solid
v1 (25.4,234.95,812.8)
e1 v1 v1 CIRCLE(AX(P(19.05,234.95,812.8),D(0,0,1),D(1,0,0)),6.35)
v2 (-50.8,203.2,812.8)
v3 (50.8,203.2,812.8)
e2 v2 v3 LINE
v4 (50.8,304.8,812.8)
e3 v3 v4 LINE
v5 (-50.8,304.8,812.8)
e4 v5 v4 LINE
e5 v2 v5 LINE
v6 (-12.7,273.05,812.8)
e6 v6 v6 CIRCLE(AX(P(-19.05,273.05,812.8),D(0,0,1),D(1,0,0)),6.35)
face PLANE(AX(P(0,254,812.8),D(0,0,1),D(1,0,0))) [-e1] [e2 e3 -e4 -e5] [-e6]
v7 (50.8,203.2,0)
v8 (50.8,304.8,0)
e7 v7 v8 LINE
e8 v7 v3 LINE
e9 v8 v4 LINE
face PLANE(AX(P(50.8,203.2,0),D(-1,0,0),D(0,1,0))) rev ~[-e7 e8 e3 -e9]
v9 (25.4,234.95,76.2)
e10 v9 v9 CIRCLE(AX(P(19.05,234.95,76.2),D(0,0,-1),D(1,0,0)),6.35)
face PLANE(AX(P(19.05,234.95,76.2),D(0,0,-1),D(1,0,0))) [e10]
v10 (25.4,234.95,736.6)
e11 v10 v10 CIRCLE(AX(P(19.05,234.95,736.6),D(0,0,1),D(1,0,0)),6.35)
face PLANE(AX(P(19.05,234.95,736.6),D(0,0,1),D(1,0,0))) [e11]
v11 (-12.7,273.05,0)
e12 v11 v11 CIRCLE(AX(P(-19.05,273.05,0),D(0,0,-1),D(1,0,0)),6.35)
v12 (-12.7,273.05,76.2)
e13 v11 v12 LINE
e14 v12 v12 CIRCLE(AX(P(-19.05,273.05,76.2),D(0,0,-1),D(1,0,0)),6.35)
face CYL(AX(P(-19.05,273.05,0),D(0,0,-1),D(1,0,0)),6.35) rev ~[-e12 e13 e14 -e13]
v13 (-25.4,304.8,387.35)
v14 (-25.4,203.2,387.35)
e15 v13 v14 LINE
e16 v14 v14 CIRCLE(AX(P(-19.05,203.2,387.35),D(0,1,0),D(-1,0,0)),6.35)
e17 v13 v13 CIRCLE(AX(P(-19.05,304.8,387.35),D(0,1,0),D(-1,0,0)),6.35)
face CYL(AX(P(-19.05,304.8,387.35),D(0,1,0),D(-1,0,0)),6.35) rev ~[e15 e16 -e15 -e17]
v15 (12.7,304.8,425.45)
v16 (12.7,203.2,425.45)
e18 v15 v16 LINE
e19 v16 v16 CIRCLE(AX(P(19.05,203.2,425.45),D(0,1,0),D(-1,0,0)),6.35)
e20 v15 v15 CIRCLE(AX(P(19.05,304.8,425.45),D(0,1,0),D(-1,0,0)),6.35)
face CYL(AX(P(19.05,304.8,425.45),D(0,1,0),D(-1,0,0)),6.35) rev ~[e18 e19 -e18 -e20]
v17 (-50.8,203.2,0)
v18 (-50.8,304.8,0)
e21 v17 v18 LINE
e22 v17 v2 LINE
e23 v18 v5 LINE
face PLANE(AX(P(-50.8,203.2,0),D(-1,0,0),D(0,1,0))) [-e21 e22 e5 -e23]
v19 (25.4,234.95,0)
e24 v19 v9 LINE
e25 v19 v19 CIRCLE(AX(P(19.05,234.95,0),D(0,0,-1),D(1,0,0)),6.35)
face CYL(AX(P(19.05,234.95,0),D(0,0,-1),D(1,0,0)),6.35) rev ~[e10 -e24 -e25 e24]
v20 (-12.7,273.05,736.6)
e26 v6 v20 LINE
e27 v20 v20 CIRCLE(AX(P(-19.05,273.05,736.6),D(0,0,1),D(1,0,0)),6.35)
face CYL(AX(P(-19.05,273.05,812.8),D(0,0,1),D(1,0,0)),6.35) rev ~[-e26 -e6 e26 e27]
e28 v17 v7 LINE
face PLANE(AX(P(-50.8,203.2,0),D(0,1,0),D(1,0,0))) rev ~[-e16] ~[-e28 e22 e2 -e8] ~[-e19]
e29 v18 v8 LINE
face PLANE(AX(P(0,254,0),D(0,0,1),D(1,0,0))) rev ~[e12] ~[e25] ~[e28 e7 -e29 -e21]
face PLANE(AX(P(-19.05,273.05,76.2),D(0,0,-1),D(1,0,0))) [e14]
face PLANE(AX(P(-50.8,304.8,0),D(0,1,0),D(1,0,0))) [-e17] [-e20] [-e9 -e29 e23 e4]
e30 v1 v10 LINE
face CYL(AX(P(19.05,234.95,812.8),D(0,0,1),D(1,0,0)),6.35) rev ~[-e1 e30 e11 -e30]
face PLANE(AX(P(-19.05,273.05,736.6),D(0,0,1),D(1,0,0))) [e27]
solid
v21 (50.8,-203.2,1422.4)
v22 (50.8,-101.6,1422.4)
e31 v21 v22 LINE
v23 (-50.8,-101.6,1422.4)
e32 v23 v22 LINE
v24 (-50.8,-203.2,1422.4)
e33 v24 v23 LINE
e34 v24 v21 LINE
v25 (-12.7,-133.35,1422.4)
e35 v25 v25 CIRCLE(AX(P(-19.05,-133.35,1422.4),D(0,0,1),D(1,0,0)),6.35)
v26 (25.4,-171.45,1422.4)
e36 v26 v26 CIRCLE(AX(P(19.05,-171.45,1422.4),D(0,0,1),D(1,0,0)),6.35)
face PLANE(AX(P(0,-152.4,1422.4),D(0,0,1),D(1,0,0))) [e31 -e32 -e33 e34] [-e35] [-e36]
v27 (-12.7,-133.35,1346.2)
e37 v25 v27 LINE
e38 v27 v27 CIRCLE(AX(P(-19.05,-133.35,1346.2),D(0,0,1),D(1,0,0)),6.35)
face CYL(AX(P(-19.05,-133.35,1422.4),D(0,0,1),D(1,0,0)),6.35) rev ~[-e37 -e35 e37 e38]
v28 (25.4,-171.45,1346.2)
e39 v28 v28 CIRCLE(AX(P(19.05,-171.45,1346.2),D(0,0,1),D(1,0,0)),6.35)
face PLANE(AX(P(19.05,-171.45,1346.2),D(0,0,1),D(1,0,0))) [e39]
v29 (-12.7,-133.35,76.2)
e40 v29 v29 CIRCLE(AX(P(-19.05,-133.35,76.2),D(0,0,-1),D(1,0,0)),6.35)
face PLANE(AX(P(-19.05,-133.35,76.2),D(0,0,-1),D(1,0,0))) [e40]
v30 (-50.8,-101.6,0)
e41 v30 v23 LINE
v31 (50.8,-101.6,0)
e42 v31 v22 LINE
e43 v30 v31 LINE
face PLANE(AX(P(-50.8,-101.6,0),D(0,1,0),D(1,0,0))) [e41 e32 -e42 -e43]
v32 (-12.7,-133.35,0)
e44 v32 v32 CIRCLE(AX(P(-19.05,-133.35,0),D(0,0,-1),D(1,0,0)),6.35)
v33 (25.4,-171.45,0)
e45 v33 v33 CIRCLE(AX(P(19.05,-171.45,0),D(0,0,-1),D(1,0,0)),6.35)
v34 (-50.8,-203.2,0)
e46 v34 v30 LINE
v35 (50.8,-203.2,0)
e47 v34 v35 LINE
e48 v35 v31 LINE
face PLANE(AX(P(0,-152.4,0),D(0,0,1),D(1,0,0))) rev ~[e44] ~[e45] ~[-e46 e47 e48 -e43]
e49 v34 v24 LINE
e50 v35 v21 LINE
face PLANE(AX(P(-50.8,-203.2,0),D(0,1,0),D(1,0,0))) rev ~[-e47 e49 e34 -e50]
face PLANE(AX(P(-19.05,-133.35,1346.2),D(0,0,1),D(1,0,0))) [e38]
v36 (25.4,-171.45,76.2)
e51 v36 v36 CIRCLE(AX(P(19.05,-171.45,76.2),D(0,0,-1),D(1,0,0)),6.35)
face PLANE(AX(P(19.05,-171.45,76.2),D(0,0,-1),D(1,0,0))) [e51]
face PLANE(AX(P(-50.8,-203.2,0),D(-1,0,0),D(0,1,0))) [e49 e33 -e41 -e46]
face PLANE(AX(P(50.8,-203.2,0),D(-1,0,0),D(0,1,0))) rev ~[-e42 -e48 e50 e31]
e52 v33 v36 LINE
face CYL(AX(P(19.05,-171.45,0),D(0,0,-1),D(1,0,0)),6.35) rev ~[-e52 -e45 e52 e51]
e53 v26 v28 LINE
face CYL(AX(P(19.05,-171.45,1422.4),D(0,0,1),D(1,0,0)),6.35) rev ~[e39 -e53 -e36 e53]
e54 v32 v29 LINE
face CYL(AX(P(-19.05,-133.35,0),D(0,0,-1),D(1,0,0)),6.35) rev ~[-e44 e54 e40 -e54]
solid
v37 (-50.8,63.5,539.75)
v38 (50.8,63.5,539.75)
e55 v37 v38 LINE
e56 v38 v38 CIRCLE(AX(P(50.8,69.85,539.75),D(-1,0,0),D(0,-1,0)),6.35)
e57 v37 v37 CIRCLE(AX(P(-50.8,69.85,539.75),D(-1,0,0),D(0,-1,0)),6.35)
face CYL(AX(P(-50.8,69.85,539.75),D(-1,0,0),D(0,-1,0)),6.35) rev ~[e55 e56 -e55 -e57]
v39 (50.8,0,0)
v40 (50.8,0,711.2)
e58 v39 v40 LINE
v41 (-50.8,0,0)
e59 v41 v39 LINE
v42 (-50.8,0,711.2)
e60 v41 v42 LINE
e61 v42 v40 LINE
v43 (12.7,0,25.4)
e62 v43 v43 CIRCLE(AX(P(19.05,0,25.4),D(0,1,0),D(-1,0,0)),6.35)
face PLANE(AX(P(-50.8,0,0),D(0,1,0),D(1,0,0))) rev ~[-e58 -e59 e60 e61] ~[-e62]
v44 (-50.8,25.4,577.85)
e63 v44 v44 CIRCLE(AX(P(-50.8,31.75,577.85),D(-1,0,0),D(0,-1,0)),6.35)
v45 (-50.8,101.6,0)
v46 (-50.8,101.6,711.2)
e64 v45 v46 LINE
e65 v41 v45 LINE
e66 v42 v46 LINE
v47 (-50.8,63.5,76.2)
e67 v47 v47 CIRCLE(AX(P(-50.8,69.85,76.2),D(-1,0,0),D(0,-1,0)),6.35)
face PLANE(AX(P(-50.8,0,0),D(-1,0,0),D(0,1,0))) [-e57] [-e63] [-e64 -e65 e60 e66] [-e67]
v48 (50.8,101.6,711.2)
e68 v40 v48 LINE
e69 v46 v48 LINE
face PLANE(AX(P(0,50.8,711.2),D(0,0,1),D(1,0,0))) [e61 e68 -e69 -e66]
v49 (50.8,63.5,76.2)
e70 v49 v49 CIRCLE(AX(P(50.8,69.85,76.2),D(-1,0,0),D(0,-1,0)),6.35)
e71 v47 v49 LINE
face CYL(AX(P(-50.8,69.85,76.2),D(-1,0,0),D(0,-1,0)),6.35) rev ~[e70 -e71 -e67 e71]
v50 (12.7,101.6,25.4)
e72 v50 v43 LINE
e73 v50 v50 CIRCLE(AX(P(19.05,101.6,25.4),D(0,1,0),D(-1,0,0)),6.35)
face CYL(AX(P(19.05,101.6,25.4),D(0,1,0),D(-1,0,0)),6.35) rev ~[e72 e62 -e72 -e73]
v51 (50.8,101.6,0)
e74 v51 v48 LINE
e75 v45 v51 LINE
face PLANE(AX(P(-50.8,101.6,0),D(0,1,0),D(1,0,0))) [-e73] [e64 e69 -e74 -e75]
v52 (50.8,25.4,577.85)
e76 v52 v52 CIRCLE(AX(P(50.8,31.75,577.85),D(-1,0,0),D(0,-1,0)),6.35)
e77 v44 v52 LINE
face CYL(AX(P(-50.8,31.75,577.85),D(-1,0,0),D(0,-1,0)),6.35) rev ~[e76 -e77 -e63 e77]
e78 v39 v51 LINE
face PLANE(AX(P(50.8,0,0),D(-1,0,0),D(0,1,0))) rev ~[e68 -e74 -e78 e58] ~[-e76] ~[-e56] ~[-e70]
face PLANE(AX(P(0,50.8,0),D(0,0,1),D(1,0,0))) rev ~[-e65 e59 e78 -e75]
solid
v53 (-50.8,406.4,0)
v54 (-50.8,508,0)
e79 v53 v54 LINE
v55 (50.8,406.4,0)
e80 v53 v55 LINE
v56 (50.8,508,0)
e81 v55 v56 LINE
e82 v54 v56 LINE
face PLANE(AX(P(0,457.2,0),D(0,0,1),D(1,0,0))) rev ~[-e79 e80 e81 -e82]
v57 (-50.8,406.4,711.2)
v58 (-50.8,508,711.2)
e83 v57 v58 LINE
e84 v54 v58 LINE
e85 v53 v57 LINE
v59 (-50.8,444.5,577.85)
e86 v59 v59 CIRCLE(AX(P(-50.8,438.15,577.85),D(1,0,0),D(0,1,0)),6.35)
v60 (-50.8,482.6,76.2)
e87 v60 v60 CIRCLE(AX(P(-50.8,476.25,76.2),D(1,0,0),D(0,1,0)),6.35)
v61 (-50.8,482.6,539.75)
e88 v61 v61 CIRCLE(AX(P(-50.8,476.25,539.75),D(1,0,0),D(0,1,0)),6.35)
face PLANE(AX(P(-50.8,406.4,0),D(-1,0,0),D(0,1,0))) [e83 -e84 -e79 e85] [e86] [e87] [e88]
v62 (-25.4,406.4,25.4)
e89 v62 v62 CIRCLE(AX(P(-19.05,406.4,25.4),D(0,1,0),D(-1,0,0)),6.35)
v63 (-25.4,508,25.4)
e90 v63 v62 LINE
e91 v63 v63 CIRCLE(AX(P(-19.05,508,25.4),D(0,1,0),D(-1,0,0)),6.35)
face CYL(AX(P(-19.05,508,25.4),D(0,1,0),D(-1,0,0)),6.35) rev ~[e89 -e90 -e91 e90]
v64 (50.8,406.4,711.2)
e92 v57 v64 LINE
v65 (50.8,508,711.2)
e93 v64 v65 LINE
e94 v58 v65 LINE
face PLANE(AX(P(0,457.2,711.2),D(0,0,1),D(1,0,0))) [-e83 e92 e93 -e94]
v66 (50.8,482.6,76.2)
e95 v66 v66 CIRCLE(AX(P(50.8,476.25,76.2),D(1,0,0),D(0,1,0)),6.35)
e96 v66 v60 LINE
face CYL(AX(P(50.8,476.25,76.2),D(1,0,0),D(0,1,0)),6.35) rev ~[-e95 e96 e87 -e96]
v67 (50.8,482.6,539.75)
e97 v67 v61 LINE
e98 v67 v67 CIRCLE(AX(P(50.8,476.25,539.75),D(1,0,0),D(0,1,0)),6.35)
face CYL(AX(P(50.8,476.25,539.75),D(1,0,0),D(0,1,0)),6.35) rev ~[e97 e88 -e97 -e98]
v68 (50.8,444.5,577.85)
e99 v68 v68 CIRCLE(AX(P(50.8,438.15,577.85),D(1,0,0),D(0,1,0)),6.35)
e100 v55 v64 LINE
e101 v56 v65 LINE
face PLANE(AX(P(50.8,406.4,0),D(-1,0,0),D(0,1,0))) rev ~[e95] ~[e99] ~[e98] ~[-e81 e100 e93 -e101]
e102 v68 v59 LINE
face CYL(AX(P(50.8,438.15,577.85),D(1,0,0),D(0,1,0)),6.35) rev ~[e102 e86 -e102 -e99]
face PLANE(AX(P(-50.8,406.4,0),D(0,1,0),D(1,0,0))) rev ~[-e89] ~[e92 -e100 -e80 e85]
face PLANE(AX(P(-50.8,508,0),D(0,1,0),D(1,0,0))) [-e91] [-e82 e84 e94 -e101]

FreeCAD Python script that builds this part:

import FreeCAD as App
import Part
import Sketcher

V = App.Vector
Q = App.Units.Quantity


def add_polygon(sketch, points):
    """Adds a closed chain of lines whose ends are joined by coincident constraints."""
    first, n = sketch.GeometryCount, len(points)
    for a, b in zip(points, points[1:] + points[:1]):
        sketch.addGeometry(Part.LineSegment(App.Vector(*a, 0), App.Vector(*b, 0)), False)
    for i in range(n):
        sketch.addConstraint(Sketcher.Constraint("Coincident", first + i, 2, first + (i + 1) % n, 1))

doc = App.newDocument("Part")
body = doc.addObject("PartDesign::Body", "Body")

sketch1 = doc.addObject("Sketcher::SketchObject", "Sketch")
body.addObject(sketch1)
sketch1.AttachmentSupport = (doc.XY_Plane, [""])
sketch1.MapMode = "FlatFace"
add_polygon(sketch1, [(-51, 102), (-51, 0), (51, 0), (51, 102)])
sketch1.addConstraint(Sketcher.Constraint("Vertical", 0))
sketch1.addConstraint(Sketcher.Constraint("Horizontal", 1))
sketch1.addConstraint(Sketcher.Constraint("Vertical", 2))
sketch1.addConstraint(Sketcher.Constraint("Horizontal", 3))
sketch1.addConstraint(Sketcher.Constraint("Symmetric", 0, 2, 1, 2, -1, 1))
sketch1.addConstraint(Sketcher.Constraint("Equal", 3, 0))
sketch1.addConstraint(Sketcher.Constraint("DistanceX", 1, 1, 1, 2, Q("4 in")))
pad1 = doc.addObject("PartDesign::Pad", "Pad")
body.addObject(pad1)
pad1.Profile = sketch1
pad1.Length = Q("28 in")

sketch2 = doc.addObject("Sketcher::SketchObject", "Sketch001")
body.addObject(sketch2)
sketch2.AttachmentSupport = (doc.XZ_Plane, [""])
sketch2.MapMode = "FlatFace"
sketch2.AttachmentOffset = App.Placement(V(0, 0, -4 * 25.4), App.Rotation())
sketch2.addGeometry(Part.Circle(V(19, 25, 0), V(0, 0, 1), 6), False)
sketch2.addConstraint(Sketcher.Constraint("Diameter", 0, Q("0.5 in")))
sketch2.addConstraint(Sketcher.Constraint("DistanceY", -1, 1, 0, 3, Q("1 in")))
sketch2.addConstraint(Sketcher.Constraint("DistanceX", -1, 1, 0, 3, Q("0.75 in")))
pocket1 = doc.addObject("PartDesign::Pocket", "Pocket")
body.addObject(pocket1)
pocket1.Profile = sketch2
pocket1.Type = "ThroughAll"
pocket1.Reversed = True

sketch3 = doc.addObject("Sketcher::SketchObject", "Sketch002")
body.addObject(sketch3)
sketch3.AttachmentSupport = (doc.YZ_Plane, [""])
sketch3.MapMode = "FlatFace"
sketch3.AttachmentOffset = App.Placement(V(0, 0, -2 * 25.4), App.Rotation())
sketch3.addGeometry(Part.Circle(V(70, 76, 0), V(0, 0, 1), 6), False)
sketch3.addConstraint(Sketcher.Constraint("Diameter", 0, Q("0.5 in")))
sketch3.addConstraint(Sketcher.Constraint("DistanceY", -1, 1, 0, 3, Q("3 in")))
sketch3.addConstraint(Sketcher.Constraint("DistanceX", -1, 1, 0, 3, Q("2.75 in")))
pocket2 = doc.addObject("PartDesign::Pocket", "Pocket001")
body.addObject(pocket2)
pocket2.Profile = sketch3
pocket2.Type = "ThroughAll"
pocket2.Reversed = True

sketch4 = doc.addObject("Sketcher::SketchObject", "Sketch003")
body.addObject(sketch4)
sketch4.AttachmentSupport = (doc.YZ_Plane, [""])
sketch4.MapMode = "FlatFace"
sketch4.AttachmentOffset = App.Placement(V(0, 0, -2 * 25.4), App.Rotation())
sketch4.addGeometry(Part.Circle(V(32, 578, 0), V(0, 0, 1), 6), False)
sketch4.addGeometry(Part.Circle(V(70, 540, 0), V(0, 0, 1), 6), False)
sketch4.addConstraint(Sketcher.Constraint("Equal", 0, 1))
sketch4.addConstraint(Sketcher.Constraint("Diameter", 0, Q("0.5 in")))
sketch4.addConstraint(Sketcher.Constraint("DistanceX", 0, 3, 1, 3, Q("1.5 in")))
sketch4.addConstraint(Sketcher.Constraint("DistanceY", 1, 3, 0, 3, Q("1.5 in")))
sketch4.addConstraint(Sketcher.Constraint("DistanceX", -1, 1, 0, 3, Q("1.25 in")))
sketch4.addConstraint(Sketcher.Constraint("DistanceY", -1, 1, 0, 3, Q("22.75 in")))
pocket3 = doc.addObject("PartDesign::Pocket", "Pocket002")
body.addObject(pocket3)
pocket3.Profile = sketch4
pocket3.Type = "ThroughAll"
pocket3.Reversed = True
body2 = doc.addObject("PartDesign::Body", "Body001")

sketch5 = doc.addObject("Sketcher::SketchObject", "Sketch004")
body2.addObject(sketch5)
sketch5.AttachmentSupport = (doc.getObject("XY_Plane001"), [""])
sketch5.MapMode = "FlatFace"
add_polygon(sketch5, [(-51, -102), (-51, -203), (51, -203), (51, -102)])
sketch5.addConstraint(Sketcher.Constraint("Vertical", 0))
sketch5.addConstraint(Sketcher.Constraint("Horizontal", 1))
sketch5.addConstraint(Sketcher.Constraint("Vertical", 2))
sketch5.addConstraint(Sketcher.Constraint("Horizontal", 3))
sketch5.addConstraint(Sketcher.Constraint("Equal", 3, 0))
sketch5.addConstraint(Sketcher.Constraint("DistanceX", 1, 1, 1, 2, Q("4 in")))
sketch5.addConstraint(Sketcher.Constraint("DistanceX", 0, 2, -1, 1, Q("2 in")))
sketch5.addConstraint(Sketcher.Constraint("DistanceY", 0, 2, -1, 1, Q("8 in")))
pad2 = doc.addObject("PartDesign::Pad", "Pad001")
body2.addObject(pad2)
pad2.Profile = sketch5
pad2.Length = Q("56 in")

sketch6 = doc.addObject("Sketcher::SketchObject", "Sketch005")
body2.addObject(sketch6)
sketch6.AttachmentSupport = (doc.getObject("XY_Plane001"), [""])
sketch6.MapMode = "FlatFace"
sketch6.addGeometry(Part.Circle(V(19, -171, 0), V(0, 0, 1), 6), False)
sketch6.addGeometry(Part.Circle(V(-19, -133, 0), V(0, 0, 1), 6), False)
sketch6.addConstraint(Sketcher.Constraint("Equal", 0, 1))
sketch6.addConstraint(Sketcher.Constraint("Diameter", 0, Q("0.5 in")))
sketch6.addConstraint(Sketcher.Constraint("DistanceX", 1, 3, 0, 3, Q("1.5 in")))
sketch6.addConstraint(Sketcher.Constraint("DistanceY", 0, 3, 1, 3, Q("1.5 in")))
sketch6.addConstraint(Sketcher.Constraint("DistanceX", -1, 1, 0, 3, Q("0.75 in")))
sketch6.addConstraint(Sketcher.Constraint("DistanceY", 0, 3, -1, 1, Q("6.75 in")))
pocket4 = doc.addObject("PartDesign::Pocket", "Pocket003")
body2.addObject(pocket4)
pocket4.Profile = sketch6
pocket4.Length = Q("3 in")
pocket4.Reversed = True

sketch7 = doc.addObject("Sketcher::SketchObject", "Sketch006")
body2.addObject(sketch7)
sketch7.AttachmentSupport = (doc.getObject("XY_Plane001"), [""])
sketch7.MapMode = "FlatFace"
sketch7.AttachmentOffset = App.Placement(V(0, 0, 56 * 25.4), App.Rotation())
sketch7.addGeometry(Part.Circle(V(-19, -133, 0), V(0, 0, 1), 6), False)
sketch7.addGeometry(Part.Circle(V(19, -171, 0), V(0, 0, 1), 6), False)
sketch7.addConstraint(Sketcher.Constraint("Equal", 0, 1))
sketch7.addConstraint(Sketcher.Constraint("Diameter", 0, Q("0.5 in")))
sketch7.addConstraint(Sketcher.Constraint("DistanceX", 0, 3, 1, 3, Q("1.5 in")))
sketch7.addConstraint(Sketcher.Constraint("DistanceY", 1, 3, 0, 3, Q("1.5 in")))
sketch7.addConstraint(Sketcher.Constraint("DistanceX", 0, 3, -1, 1, Q("0.75 in")))
sketch7.addConstraint(Sketcher.Constraint("DistanceY", 0, 3, -1, 1, Q("5.25 in")))
pocket5 = doc.addObject("PartDesign::Pocket", "Pocket004")
body2.addObject(pocket5)
pocket5.Profile = sketch7
pocket5.Length = Q("3 in")
body3 = doc.addObject("PartDesign::Body", "Body002")

sketch8 = doc.addObject("Sketcher::SketchObject", "Sketch007")
body3.addObject(sketch8)
sketch8.AttachmentSupport = (doc.getObject("XY_Plane002"), [""])
sketch8.MapMode = "FlatFace"
add_polygon(sketch8, [(-51, 305), (-51, 203), (51, 203), (51, 305)])
sketch8.addConstraint(Sketcher.Constraint("Vertical", 0))
sketch8.addConstraint(Sketcher.Constraint("Horizontal", 1))
sketch8.addConstraint(Sketcher.Constraint("Vertical", 2))
sketch8.addConstraint(Sketcher.Constraint("Horizontal", 3))
sketch8.addConstraint(Sketcher.Constraint("Equal", 3, 0))
sketch8.addConstraint(Sketcher.Constraint("DistanceX", 1, 1, 1, 2, Q("4 in")))
sketch8.addConstraint(Sketcher.Constraint("DistanceX", 0, 2, -1, 1, Q("2 in")))
sketch8.addConstraint(Sketcher.Constraint("DistanceY", -1, 1, 0, 2, Q("8 in")))
pad3 = doc.addObject("PartDesign::Pad", "Pad002")
body3.addObject(pad3)
pad3.Profile = sketch8
pad3.Length = Q("32 in")

sketch9 = doc.addObject("Sketcher::SketchObject", "Sketch008")
body3.addObject(sketch9)
sketch9.AttachmentSupport = (doc.getObject("XZ_Plane002"), [""])
sketch9.MapMode = "FlatFace"
sketch9.AttachmentOffset = App.Placement(V(0, 0, -12 * 25.4), App.Rotation())
sketch9.addGeometry(Part.Circle(V(-19, 387, 0), V(0, 0, 1), 6), False)
sketch9.addGeometry(Part.Circle(V(19, 425, 0), V(0, 0, 1), 6), False)
sketch9.addConstraint(Sketcher.Constraint("Equal", 0, 1))
sketch9.addConstraint(Sketcher.Constraint("Diameter", 0, Q("0.5 in")))
sketch9.addConstraint(Sketcher.Constraint("DistanceX", 0, 3, 1, 3, Q("1.5 in")))
sketch9.addConstraint(Sketcher.Constraint("DistanceY", 0, 3, 1, 3, Q("1.5 in")))
sketch9.addConstraint(Sketcher.Constraint("DistanceX", 0, 3, -1, 1, Q("0.75 in")))
sketch9.addConstraint(Sketcher.Constraint("DistanceY", -1, 1, 0, 3, Q("15.25 in")))
pocket6 = doc.addObject("PartDesign::Pocket", "Pocket005")
body3.addObject(pocket6)
pocket6.Profile = sketch9
pocket6.Type = "ThroughAll"
pocket6.Reversed = True

sketch10 = doc.addObject("Sketcher::SketchObject", "Sketch009")
body3.addObject(sketch10)
sketch10.AttachmentSupport = (doc.getObject("XY_Plane002"), [""])
sketch10.MapMode = "FlatFace"
sketch10.AttachmentOffset = App.Placement(V(0, 0, 32 * 25.4), App.Rotation())
sketch10.addGeometry(Part.Circle(V(-19, 273, 0), V(0, 0, 1), 6), False)
sketch10.addGeometry(Part.Circle(V(19, 235, 0), V(0, 0, 1), 6), False)
sketch10.addConstraint(Sketcher.Constraint("Equal", 0, 1))
sketch10.addConstraint(Sketcher.Constraint("Diameter", 0, Q("0.5 in")))
sketch10.addConstraint(Sketcher.Constraint("DistanceX", 0, 3, 1, 3, Q("1.5 in")))
sketch10.addConstraint(Sketcher.Constraint("DistanceY", 1, 3, 0, 3, Q("1.5 in")))
sketch10.addConstraint(Sketcher.Constraint("DistanceX", 0, 3, -1, 1, Q("0.75 in")))
sketch10.addConstraint(Sketcher.Constraint("DistanceY", -1, 1, 0, 3, Q("10.75 in")))
pocket7 = doc.addObject("PartDesign::Pocket", "Pocket006")
body3.addObject(pocket7)
pocket7.Profile = sketch10
pocket7.Length = Q("3 in")

sketch11 = doc.addObject("Sketcher::SketchObject", "Sketch010")
body3.addObject(sketch11)
sketch11.AttachmentSupport = (doc.getObject("XY_Plane002"), [""])
sketch11.MapMode = "FlatFace"
sketch11.addGeometry(Part.Circle(V(19, 235, 0), V(0, 0, 1), 6), False)
sketch11.addGeometry(Part.Circle(V(-19, 273, 0), V(0, 0, 1), 6), False)
sketch11.addConstraint(Sketcher.Constraint("Equal", 0, 1))
sketch11.addConstraint(Sketcher.Constraint("Diameter", 0, Q("0.5 in")))
sketch11.addConstraint(Sketcher.Constraint("DistanceX", 1, 3, 0, 3, Q("1.5 in")))
sketch11.addConstraint(Sketcher.Constraint("DistanceY", 0, 3, 1, 3, Q("1.5 in")))
sketch11.addConstraint(Sketcher.Constraint("DistanceX", -1, 1, 0, 3, Q("0.75 in")))
sketch11.addConstraint(Sketcher.Constraint("DistanceY", -1, 1, 0, 3, Q("9.25 in")))
pocket8 = doc.addObject("PartDesign::Pocket", "Pocket007")
body3.addObject(pocket8)
pocket8.Profile = sketch11
pocket8.Length = Q("3 in")
pocket8.Reversed = True
body4 = doc.addObject("PartDesign::Body", "Body003")

sketch12 = doc.addObject("Sketcher::SketchObject", "Sketch011")
body4.addObject(sketch12)
sketch12.AttachmentSupport = (doc.getObject("XY_Plane003"), [""])
sketch12.MapMode = "FlatFace"
add_polygon(sketch12, [(-51, 508), (-51, 406), (51, 406), (51, 508)])
sketch12.addConstraint(Sketcher.Constraint("Vertical", 0))
sketch12.addConstraint(Sketcher.Constraint("Horizontal", 1))
sketch12.addConstraint(Sketcher.Constraint("Vertical", 2))
sketch12.addConstraint(Sketcher.Constraint("Horizontal", 3))
sketch12.addConstraint(Sketcher.Constraint("Equal", 3, 0))
sketch12.addConstraint(Sketcher.Constraint("DistanceX", 1, 1, 1, 2, Q("4 in")))
sketch12.addConstraint(Sketcher.Constraint("DistanceX", 0, 2, -1, 1, Q("2 in")))
sketch12.addConstraint(Sketcher.Constraint("DistanceY", -1, 1, 0, 2, Q("16 in")))
pad4 = doc.addObject("PartDesign::Pad", "Pad003")
body4.addObject(pad4)
pad4.Profile = sketch12
pad4.Length = Q("28 in")

sketch13 = doc.addObject("Sketcher::SketchObject", "Sketch012")
body4.addObject(sketch13)
sketch13.AttachmentSupport = (doc.getObject("YZ_Plane003"), [""])
sketch13.MapMode = "FlatFace"
sketch13.AttachmentOffset = App.Placement(V(0, 0, 2 * 25.4), App.Rotation())
sketch13.addGeometry(Part.Circle(V(476, 540, 0), V(0, 0, 1), 6), False)
sketch13.addGeometry(Part.Circle(V(438, 578, 0), V(0, 0, 1), 6), False)
sketch13.addConstraint(Sketcher.Constraint("Equal", 0, 1))
sketch13.addConstraint(Sketcher.Constraint("Diameter", 0, Q("0.5 in")))
sketch13.addConstraint(Sketcher.Constraint("DistanceX", 1, 3, 0, 3, Q("1.5 in")))
sketch13.addConstraint(Sketcher.Constraint("DistanceY", 0, 3, 1, 3, Q("1.5 in")))
sketch13.addConstraint(Sketcher.Constraint("DistanceX", -1, 1, 0, 3, Q("18.75 in")))
sketch13.addConstraint(Sketcher.Constraint("DistanceY", -1, 1, 0, 3, Q("21.25 in")))
pocket9 = doc.addObject("PartDesign::Pocket", "Pocket008")
body4.addObject(pocket9)
pocket9.Profile = sketch13
pocket9.Type = "ThroughAll"

sketch14 = doc.addObject("Sketcher::SketchObject", "Sketch013")
body4.addObject(sketch14)
sketch14.AttachmentSupport = (doc.getObject("XZ_Plane003"), [""])
sketch14.MapMode = "FlatFace"
sketch14.AttachmentOffset = App.Placement(V(0, 0, -20 * 25.4), App.Rotation())
sketch14.addGeometry(Part.Circle(V(-19, 25, 0), V(0, 0, 1), 6), False)
sketch14.addConstraint(Sketcher.Constraint("Diameter", 0, Q("0.5 in")))
sketch14.addConstraint(Sketcher.Constraint("DistanceY", -1, 1, 0, 3, Q("1 in")))
sketch14.addConstraint(Sketcher.Constraint("DistanceX", 0, 3, -1, 1, Q("0.75 in")))
pocket10 = doc.addObject("PartDesign::Pocket", "Pocket009")
body4.addObject(pocket10)
pocket10.Profile = sketch14
pocket10.Type = "ThroughAll"
pocket10.Reversed = True

sketch15 = doc.addObject("Sketcher::SketchObject", "Sketch014")
body4.addObject(sketch15)
sketch15.AttachmentSupport = (doc.getObject("YZ_Plane003"), [""])
sketch15.MapMode = "FlatFace"
sketch15.AttachmentOffset = App.Placement(V(0, 0, 2 * 25.4), App.Rotation())
sketch15.addGeometry(Part.Circle(V(476, 76, 0), V(0, 0, 1), 6), False)
sketch15.addConstraint(Sketcher.Constraint("Diameter", 0, Q("0.5 in")))
sketch15.addConstraint(Sketcher.Constraint("DistanceY", -1, 1, 0, 3, Q("3 in")))
sketch15.addConstraint(Sketcher.Constraint("DistanceX", -1, 1, 0, 3, Q("18.75 in")))
pocket11 = doc.addObject("PartDesign::Pocket", "Pocket010")
body4.addObject(pocket11)
pocket11.Profile = sketch15
pocket11.Type = "ThroughAll"

doc.recompute()
